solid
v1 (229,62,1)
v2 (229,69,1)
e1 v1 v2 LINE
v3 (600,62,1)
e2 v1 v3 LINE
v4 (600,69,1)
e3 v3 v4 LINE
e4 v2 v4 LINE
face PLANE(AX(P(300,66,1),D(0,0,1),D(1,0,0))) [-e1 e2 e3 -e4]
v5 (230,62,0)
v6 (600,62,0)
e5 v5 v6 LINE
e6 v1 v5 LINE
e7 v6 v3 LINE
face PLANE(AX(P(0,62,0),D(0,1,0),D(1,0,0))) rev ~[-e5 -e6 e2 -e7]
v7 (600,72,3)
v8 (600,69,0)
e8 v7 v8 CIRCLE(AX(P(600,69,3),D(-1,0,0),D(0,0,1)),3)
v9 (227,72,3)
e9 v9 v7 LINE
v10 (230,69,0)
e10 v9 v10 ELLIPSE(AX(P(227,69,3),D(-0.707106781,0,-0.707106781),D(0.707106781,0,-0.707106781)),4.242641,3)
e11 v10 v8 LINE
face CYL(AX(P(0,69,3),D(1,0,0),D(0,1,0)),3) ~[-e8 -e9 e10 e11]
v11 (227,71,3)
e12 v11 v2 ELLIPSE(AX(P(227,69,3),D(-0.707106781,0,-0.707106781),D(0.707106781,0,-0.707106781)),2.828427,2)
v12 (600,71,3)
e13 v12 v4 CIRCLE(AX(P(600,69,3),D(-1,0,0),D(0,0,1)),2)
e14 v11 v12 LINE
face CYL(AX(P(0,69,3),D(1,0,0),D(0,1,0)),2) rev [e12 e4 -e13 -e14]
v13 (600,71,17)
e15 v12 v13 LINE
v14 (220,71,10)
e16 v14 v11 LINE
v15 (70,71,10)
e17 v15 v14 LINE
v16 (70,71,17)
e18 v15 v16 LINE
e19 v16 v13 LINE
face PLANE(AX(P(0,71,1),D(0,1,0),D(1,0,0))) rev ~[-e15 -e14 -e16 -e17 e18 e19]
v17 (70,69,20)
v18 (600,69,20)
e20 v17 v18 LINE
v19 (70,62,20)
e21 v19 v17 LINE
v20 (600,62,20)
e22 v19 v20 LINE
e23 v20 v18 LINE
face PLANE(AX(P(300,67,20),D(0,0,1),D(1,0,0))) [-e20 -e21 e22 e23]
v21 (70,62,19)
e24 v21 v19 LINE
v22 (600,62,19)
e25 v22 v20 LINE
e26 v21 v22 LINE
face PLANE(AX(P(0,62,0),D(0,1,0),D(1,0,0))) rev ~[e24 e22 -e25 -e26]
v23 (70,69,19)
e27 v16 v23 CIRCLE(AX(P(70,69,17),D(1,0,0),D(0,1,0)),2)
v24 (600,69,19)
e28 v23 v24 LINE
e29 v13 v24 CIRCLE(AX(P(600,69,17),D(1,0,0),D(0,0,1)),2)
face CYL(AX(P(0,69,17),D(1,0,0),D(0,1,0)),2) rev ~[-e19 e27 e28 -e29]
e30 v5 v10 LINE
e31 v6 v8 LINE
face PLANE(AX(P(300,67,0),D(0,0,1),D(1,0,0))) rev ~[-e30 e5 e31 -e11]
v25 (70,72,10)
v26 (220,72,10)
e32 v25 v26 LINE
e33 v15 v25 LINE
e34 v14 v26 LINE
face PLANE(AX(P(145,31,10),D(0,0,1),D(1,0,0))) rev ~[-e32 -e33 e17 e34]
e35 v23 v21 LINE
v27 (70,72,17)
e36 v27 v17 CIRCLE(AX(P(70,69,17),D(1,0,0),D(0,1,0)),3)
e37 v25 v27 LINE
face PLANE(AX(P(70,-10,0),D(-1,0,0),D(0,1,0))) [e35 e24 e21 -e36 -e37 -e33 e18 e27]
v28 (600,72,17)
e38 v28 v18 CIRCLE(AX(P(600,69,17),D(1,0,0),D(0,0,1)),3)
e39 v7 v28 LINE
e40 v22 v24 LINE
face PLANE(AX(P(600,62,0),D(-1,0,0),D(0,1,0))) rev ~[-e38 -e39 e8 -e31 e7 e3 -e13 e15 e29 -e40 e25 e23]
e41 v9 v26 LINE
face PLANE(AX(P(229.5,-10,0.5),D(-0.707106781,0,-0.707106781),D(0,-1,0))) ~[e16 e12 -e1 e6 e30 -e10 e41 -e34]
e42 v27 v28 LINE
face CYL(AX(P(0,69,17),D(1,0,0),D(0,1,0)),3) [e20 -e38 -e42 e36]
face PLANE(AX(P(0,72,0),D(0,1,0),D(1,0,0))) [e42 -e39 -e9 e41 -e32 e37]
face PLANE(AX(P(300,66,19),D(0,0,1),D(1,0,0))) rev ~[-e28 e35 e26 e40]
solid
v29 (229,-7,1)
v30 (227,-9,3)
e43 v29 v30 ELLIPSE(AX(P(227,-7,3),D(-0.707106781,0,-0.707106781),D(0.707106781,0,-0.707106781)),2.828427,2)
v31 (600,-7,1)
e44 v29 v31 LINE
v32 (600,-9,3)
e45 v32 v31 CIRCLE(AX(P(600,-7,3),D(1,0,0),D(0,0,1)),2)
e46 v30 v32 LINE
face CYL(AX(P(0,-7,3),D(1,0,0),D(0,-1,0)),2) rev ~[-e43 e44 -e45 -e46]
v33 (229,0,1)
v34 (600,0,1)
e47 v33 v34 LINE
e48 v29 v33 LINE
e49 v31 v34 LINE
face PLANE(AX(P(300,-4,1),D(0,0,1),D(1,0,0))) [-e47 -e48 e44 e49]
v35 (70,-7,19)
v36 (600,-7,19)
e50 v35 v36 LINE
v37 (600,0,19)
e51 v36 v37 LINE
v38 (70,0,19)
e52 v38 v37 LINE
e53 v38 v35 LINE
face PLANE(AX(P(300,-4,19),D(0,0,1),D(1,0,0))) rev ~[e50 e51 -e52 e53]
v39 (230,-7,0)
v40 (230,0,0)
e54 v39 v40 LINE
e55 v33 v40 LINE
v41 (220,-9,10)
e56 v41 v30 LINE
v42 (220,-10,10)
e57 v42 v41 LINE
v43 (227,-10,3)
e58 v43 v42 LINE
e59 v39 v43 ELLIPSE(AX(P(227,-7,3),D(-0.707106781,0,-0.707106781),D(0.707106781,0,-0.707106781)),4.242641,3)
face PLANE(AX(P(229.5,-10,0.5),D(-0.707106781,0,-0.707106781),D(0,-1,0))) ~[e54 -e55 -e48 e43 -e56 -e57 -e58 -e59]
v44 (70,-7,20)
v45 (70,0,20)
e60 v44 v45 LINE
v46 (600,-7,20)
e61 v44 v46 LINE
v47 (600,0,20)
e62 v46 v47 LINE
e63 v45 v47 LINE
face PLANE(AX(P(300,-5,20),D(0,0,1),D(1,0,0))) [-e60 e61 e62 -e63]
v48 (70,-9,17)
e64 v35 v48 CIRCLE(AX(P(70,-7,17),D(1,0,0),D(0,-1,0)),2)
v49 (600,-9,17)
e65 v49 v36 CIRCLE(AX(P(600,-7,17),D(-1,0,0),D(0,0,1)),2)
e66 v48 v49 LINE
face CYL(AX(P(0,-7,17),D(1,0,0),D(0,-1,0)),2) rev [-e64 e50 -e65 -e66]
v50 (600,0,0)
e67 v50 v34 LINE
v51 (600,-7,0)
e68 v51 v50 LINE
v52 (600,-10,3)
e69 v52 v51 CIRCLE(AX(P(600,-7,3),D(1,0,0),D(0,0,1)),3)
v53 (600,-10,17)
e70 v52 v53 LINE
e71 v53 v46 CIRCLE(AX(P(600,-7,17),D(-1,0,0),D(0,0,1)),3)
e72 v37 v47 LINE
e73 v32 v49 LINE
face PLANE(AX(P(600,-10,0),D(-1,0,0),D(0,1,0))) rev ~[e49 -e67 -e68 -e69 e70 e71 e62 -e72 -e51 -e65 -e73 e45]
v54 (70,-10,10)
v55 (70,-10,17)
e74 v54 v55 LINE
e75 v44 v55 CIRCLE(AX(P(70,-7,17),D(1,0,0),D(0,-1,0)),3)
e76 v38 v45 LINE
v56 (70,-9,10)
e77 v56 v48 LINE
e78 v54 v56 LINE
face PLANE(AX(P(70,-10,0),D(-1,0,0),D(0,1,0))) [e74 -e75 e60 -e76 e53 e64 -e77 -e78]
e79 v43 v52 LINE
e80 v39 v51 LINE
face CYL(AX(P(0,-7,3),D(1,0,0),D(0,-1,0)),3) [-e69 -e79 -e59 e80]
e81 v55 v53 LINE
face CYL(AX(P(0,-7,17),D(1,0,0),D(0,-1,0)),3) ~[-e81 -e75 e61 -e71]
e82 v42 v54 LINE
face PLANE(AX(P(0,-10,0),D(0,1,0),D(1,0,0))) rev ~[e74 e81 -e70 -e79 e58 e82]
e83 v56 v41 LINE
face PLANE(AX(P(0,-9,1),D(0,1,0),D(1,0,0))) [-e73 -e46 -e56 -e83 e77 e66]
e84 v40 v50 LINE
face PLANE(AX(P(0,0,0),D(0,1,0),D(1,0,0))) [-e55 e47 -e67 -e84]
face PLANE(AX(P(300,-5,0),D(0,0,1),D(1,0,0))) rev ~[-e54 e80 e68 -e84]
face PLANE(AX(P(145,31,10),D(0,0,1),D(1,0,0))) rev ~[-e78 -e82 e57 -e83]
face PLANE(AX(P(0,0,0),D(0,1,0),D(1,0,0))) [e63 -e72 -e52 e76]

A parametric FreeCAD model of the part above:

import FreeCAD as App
import Part
import Sketcher
from FreeCAD import Vector


def edges_at(feature, points):
    """Names of the edges that pass closest to the given points."""
    edges = feature.Shape.Edges
    near = lambda p: min(range(len(edges)), key=lambda i: edges[i].distToShape(Part.Vertex(*p))[0])
    return sorted({f"Edge{near(p) + 1}" for p in points})

doc = App.newDocument("Part")
params = doc.addObject("Spreadsheet::Sheet", "Params")
for row, (alias, value) in enumerate([
    ("sketch1_width", "150 mm"),
    ("sketch1_height", "82 mm"),
    ("pad1_length", "10 mm"),
    ("sketch2_width", "20 mm"),
    ("sketch2_height", "82 mm"),
    ("pad2_length", "20 mm"),
    ("chamfer_size", "19 mm"),
    ("sketch3_width", "70 mm"),
    ("sketch3_height", "82 mm"),
    ("pad3_length", "20 mm"),
    ("sketch4_width", "600 mm"),
    ("sketch4_height", "10 mm"),
    ("pad4_length", "18 mm"),
    ("fillet_radius", "2 mm"),
    ("sketch5_width", "600 mm"),
    ("sketch5_height", "10 mm"),
    ("pad5_length", "18 mm"),
    ("fillet2_radius", "2 mm"),
    ("sketch6_width", "600 mm"),
    ("sketch6_height", "10 mm"),
    ("pad6_length", "20 mm"),
    ("sketch7_width", "600 mm"),
    ("sketch7_height", "10 mm"),
    ("pad7_length", "20 mm"),
    ("fillet3_radius", "3 mm"),
], start=1):
    params.set(f"A{row}", alias)
    params.set(f"B{row}", "=" + value)
    params.setAlias(f"B{row}", alias)

body = doc.addObject("PartDesign::Body", "Body")

# Sketch on XY plane
sketch1 = body.newObject("Sketcher::SketchObject", "Sketch")
sketch1.AttachmentSupport = (doc.getObject("XY_Plane"), [""])
sketch1.MapMode = "FlatFace"
sketch1.addGeometry([
    Part.LineSegment(Vector(0, 72, 0), Vector(0, -10, 0)),
    Part.LineSegment(Vector(0, -10, 0), Vector(150, -10, 0)),
    Part.LineSegment(Vector(150, -10, 0), Vector(150, 72, 0)),
    Part.LineSegment(Vector(150, 72, 0), Vector(0, 72, 0)),
], False)
sketch1.addConstraint([
    Sketcher.Constraint("Coincident", 0, 2, 1, 1),
    Sketcher.Constraint("Coincident", 1, 2, 2, 1),
    Sketcher.Constraint("Coincident", 2, 2, 3, 1),
    Sketcher.Constraint("Coincident", 3, 2, 0, 1),
    Sketcher.Constraint("Vertical", 0),
    Sketcher.Constraint("Horizontal", 1),
    Sketcher.Constraint("Vertical", 2),
    Sketcher.Constraint("Horizontal", 3),
    Sketcher.Constraint("PointOnObject", 0, 2, -2),
    Sketcher.Constraint("DistanceX", 1, 1, 1, 2, 150.0),
    Sketcher.Constraint("DistanceY", 0, 2, 0, 1, 82.0),
    Sketcher.Constraint("DistanceY", 0, 2, -1, 1, 10.0),
])
sketch1.setExpression("Constraints[9]", "Params.sketch1_width")
sketch1.setExpression("Constraints[10]", "Params.sketch1_height")
pad1 = body.newObject("PartDesign::Pad", "Pad")
pad1.Profile = sketch1
pad1.setExpression("Length", "Params.pad1_length")
body2 = doc.addObject("PartDesign::Body", "Body001")

# Sketch on XY plane
sketch2 = body2.newObject("Sketcher::SketchObject", "Sketch001")
sketch2.AttachmentSupport = (doc.getObject("XY_Plane001"), [""])
sketch2.MapMode = "FlatFace"
sketch2.AttachmentOffset = App.Placement(Vector(0, 0, -10), App.Rotation())
sketch2.addGeometry([
    Part.LineSegment(Vector(137, 72, 0), Vector(137, -10, 0)),
    Part.LineSegment(Vector(137, -10, 0), Vector(157, -10, 0)),
    Part.LineSegment(Vector(157, -10, 0), Vector(157, 72, 0)),
    Part.LineSegment(Vector(157, 72, 0), Vector(137, 72, 0)),
], False)
sketch2.addConstraint([
    Sketcher.Constraint("Coincident", 0, 2, 1, 1),
    Sketcher.Constraint("Coincident", 1, 2, 2, 1),
    Sketcher.Constraint("Coincident", 2, 2, 3, 1),
    Sketcher.Constraint("Coincident", 3, 2, 0, 1),
    Sketcher.Constraint("Vertical", 0),
    Sketcher.Constraint("Horizontal", 1),
    Sketcher.Constraint("Vertical", 2),
    Sketcher.Constraint("Horizontal", 3),
    Sketcher.Constraint("DistanceX", 1, 1, 1, 2, 20.0),
    Sketcher.Constraint("DistanceY", 0, 2, 0, 1, 82.0),
    Sketcher.Constraint("DistanceX", -1, 1, 0, 2, 137.0),
    Sketcher.Constraint("DistanceY", 0, 2, -1, 1, 10.0),
])
sketch2.setExpression("Constraints[8]", "Params.sketch2_width")
sketch2.setExpression("Constraints[9]", "Params.sketch2_height")
pad2 = body2.newObject("PartDesign::Pad", "Pad001")
pad2.Profile = sketch2
pad2.setExpression("Length", "Params.pad2_length")
doc.recompute()

chamfer = body2.newObject("PartDesign::Chamfer", "Chamfer")
chamfer.Base = (pad2, edges_at(pad2, [(157, 31, 10)]))
chamfer.setExpression("Size", "Params.chamfer_size")
body3 = doc.addObject("PartDesign::Body", "Body002")
doc.recompute()

body2.Placement = App.Placement(Vector(12, 0, 0), App.Rotation(Vector(0, 0, 1), 0))
boolean = body3.newObject("PartDesign::Boolean", "Boolean")
boolean.Type = "Fuse"
boolean.addObjects([body2])
doc.recompute()

boolean2 = body3.newObject("PartDesign::Boolean", "Boolean001")
boolean2.Type = "Fuse"
boolean2.addObjects([body])
body4 = doc.addObject("PartDesign::Body", "Body003")
doc.recompute()

body3.Placement = App.Placement(Vector(70, 0, 0), App.Rotation(Vector(0, 0, 1), 0))
boolean3 = body4.newObject("PartDesign::Boolean", "Boolean002")
boolean3.Type = "Fuse"
boolean3.addObjects([body3])
body5 = doc.addObject("PartDesign::Body", "Body004")

# Sketch on XY plane
sketch3 = body5.newObject("Sketcher::SketchObject", "Sketch002")
sketch3.AttachmentSupport = (doc.getObject("XY_Plane004"), [""])
sketch3.MapMode = "FlatFace"
sketch3.addGeometry([
    Part.LineSegment(Vector(0, 72, 0), Vector(0, -10, 0)),
    Part.LineSegment(Vector(0, -10, 0), Vector(70, -10, 0)),
    Part.LineSegment(Vector(70, -10, 0), Vector(70, 72, 0)),
    Part.LineSegment(Vector(70, 72, 0), Vector(0, 72, 0)),
], False)
sketch3.addConstraint([
    Sketcher.Constraint("Coincident", 0, 2, 1, 1),
    Sketcher.Constraint("Coincident", 1, 2, 2, 1),
    Sketcher.Constraint("Coincident", 2, 2, 3, 1),
    Sketcher.Constraint("Coincident", 3, 2, 0, 1),
    Sketcher.Constraint("Vertical", 0),
    Sketcher.Constraint("Horizontal", 1),
    Sketcher.Constraint("Vertical", 2),
    Sketcher.Constraint("Horizontal", 3),
    Sketcher.Constraint("PointOnObject", 0, 2, -2),
    Sketcher.Constraint("DistanceX", 1, 1, 1, 2, 70.0),
    Sketcher.Constraint("DistanceY", 0, 2, 0, 1, 82.0),
    Sketcher.Constraint("DistanceY", 0, 2, -1, 1, 10.0),
])
sketch3.setExpression("Constraints[9]", "Params.sketch3_width")
sketch3.setExpression("Constraints[10]", "Params.sketch3_height")
pad3 = body5.newObject("PartDesign::Pad", "Pad002")
pad3.Profile = sketch3
pad3.setExpression("Length", "Params.pad3_length")
doc.recompute()

boolean4 = body5.newObject("PartDesign::Boolean", "Boolean003")
boolean4.Type = "Fuse"
boolean4.addObjects([body4])
body6 = doc.addObject("PartDesign::Body", "Body005")

# Sketch on XY plane
sketch4 = body6.newObject("Sketcher::SketchObject", "Sketch003")
sketch4.AttachmentSupport = (doc.getObject("XY_Plane005"), [""])
sketch4.MapMode = "FlatFace"
sketch4.AttachmentOffset = App.Placement(Vector(0, 0, 1), App.Rotation())
sketch4.addGeometry([
    Part.LineSegment(Vector(0, 11, 0), Vector(0, 1, 0)),
    Part.LineSegment(Vector(0, 1, 0), Vector(600, 1, 0)),
    Part.LineSegment(Vector(600, 1, 0), Vector(600, 11, 0)),
    Part.LineSegment(Vector(600, 11, 0), Vector(0, 11, 0)),
], False)
sketch4.addConstraint([
    Sketcher.Constraint("Coincident", 0, 2, 1, 1),
    Sketcher.Constraint("Coincident", 1, 2, 2, 1),
    Sketcher.Constraint("Coincident", 2, 2, 3, 1),
    Sketcher.Constraint("Coincident", 3, 2, 0, 1),
    Sketcher.Constraint("Vertical", 0),
    Sketcher.Constraint("Horizontal", 1),
    Sketcher.Constraint("Vertical", 2),
    Sketcher.Constraint("Horizontal", 3),
    Sketcher.Constraint("PointOnObject", 0, 2, -2),
    Sketcher.Constraint("DistanceX", 1, 1, 1, 2, 600.0),
    Sketcher.Constraint("DistanceY", 0, 2, 0, 1, 10.0),
    Sketcher.Constraint("DistanceY", -1, 1, 0, 2, 1.0),
])
sketch4.setExpression("Constraints[9]", "Params.sketch4_width")
sketch4.setExpression("Constraints[10]", "Params.sketch4_height")
pad4 = body6.newObject("PartDesign::Pad", "Pad003")
pad4.Profile = sketch4
pad4.setExpression("Length", "Params.pad4_length")
doc.recompute()

fillet = body6.newObject("PartDesign::Fillet", "Fillet")
fillet.Base = (pad4, edges_at(pad4, [(300, 1, 1), (300, 1, 19)]))
fillet.setExpression("Radius", "Params.fillet_radius")
body7 = doc.addObject("PartDesign::Body", "Body006")
doc.recompute()

body6.Placement = App.Placement(Vector(0, -10, 0), App.Rotation(Vector(0, 0, 1), 0))
boolean5 = body7.newObject("PartDesign::Boolean", "Boolean004")
boolean5.Type = "Fuse"
boolean5.addObjects([body6])
body8 = doc.addObject("PartDesign::Body", "Body007")

# Sketch on XY plane
sketch5 = body8.newObject("Sketcher::SketchObject", "Sketch004")
sketch5.AttachmentSupport = (doc.getObject("XY_Plane007"), [""])
sketch5.MapMode = "FlatFace"
sketch5.AttachmentOffset = App.Placement(Vector(0, 0, 1), App.Rotation())
sketch5.addGeometry([
    Part.LineSegment(Vector(0, 61, 0), Vector(0, 51, 0)),
    Part.LineSegment(Vector(0, 51, 0), Vector(600, 51, 0)),
    Part.LineSegment(Vector(600, 51, 0), Vector(600, 61, 0)),
    Part.LineSegment(Vector(600, 61, 0), Vector(0, 61, 0)),
], False)
sketch5.addConstraint([
    Sketcher.Constraint("Coincident", 0, 2, 1, 1),
    Sketcher.Constraint("Coincident", 1, 2, 2, 1),
    Sketcher.Constraint("Coincident", 2, 2, 3, 1),
    Sketcher.Constraint("Coincident", 3, 2, 0, 1),
    Sketcher.Constraint("Vertical", 0),
    Sketcher.Constraint("Horizontal", 1),
    Sketcher.Constraint("Vertical", 2),
    Sketcher.Constraint("Horizontal", 3),
    Sketcher.Constraint("PointOnObject", 0, 2, -2),
    Sketcher.Constraint("DistanceX", 1, 1, 1, 2, 600.0),
    Sketcher.Constraint("DistanceY", 0, 2, 0, 1, 10.0),
    Sketcher.Constraint("DistanceY", -1, 1, 0, 2, 51.0),
])
sketch5.setExpression("Constraints[9]", "Params.sketch5_width")
sketch5.setExpression("Constraints[10]", "Params.sketch5_height")
pad5 = body8.newObject("PartDesign::Pad", "Pad004")
pad5.Profile = sketch5
pad5.setExpression("Length", "Params.pad5_length")
doc.recompute()

fillet2 = body8.newObject("PartDesign::Fillet", "Fillet001")
fillet2.Base = (pad5, edges_at(pad5, [(300, 61, 1), (300, 61, 19)]))
fillet2.setExpression("Radius", "Params.fillet2_radius")
body9 = doc.addObject("PartDesign::Body", "Body008")
body9.AllowCompound = True
doc.recompute()

body8.Placement = App.Placement(Vector(0, 10, 0), App.Rotation(Vector(0, 0, 1), 0))
boolean6 = body9.newObject("PartDesign::Boolean", "Boolean005")
boolean6.Type = "Fuse"
boolean6.addObjects([body8])
doc.recompute()

boolean7 = body9.newObject("PartDesign::Boolean", "Boolean006")
boolean7.Type = "Fuse"
boolean7.addObjects([body7])
body10 = doc.addObject("PartDesign::Body", "Body009")

# Sketch on XY plane
sketch6 = body10.newObject("Sketcher::SketchObject", "Sketch005")
sketch6.AttachmentSupport = (doc.getObject("XY_Plane009"), [""])
sketch6.MapMode = "FlatFace"
sketch6.addGeometry([
    Part.LineSegment(Vector(0, 0, 0), Vector(0, -10, 0)),
    Part.LineSegment(Vector(0, -10, 0), Vector(600, -10, 0)),
    Part.LineSegment(Vector(600, -10, 0), Vector(600, 0, 0)),
    Part.LineSegment(Vector(600, 0, 0), Vector(0, 0, 0)),
], False)
sketch6.addConstraint([
    Sketcher.Constraint("Coincident", 0, 2, 1, 1),
    Sketcher.Constraint("Coincident", 1, 2, 2, 1),
    Sketcher.Constraint("Coincident", 2, 2, 3, 1),
    Sketcher.Constraint("Coincident", 3, 2, 0, 1),
    Sketcher.Constraint("Vertical", 0),
    Sketcher.Constraint("Horizontal", 1),
    Sketcher.Constraint("Vertical", 2),
    Sketcher.Constraint("Horizontal", 3),
    Sketcher.Constraint("Coincident", 3, 2, -1, 1),
    Sketcher.Constraint("DistanceX", 1, 1, 1, 2, 600.0),
    Sketcher.Constraint("DistanceY", 0, 2, 0, 1, 10.0),
])
sketch6.setExpression("Constraints[9]", "Params.sketch6_width")
sketch6.setExpression("Constraints[10]", "Params.sketch6_height")
pad6 = body10.newObject("PartDesign::Pad", "Pad005")
pad6.Profile = sketch6
pad6.setExpression("Length", "Params.pad6_length")
body11 = doc.addObject("PartDesign::Body", "Body010")
body11.AllowCompound = True

# Sketch on XY plane
sketch7 = body11.newObject("Sketcher::SketchObject", "Sketch006")
sketch7.AttachmentSupport = (doc.getObject("XY_Plane010"), [""])
sketch7.MapMode = "FlatFace"
sketch7.addGeometry([
    Part.LineSegment(Vector(0, 72, 0), Vector(0, 62, 0)),
    Part.LineSegment(Vector(0, 62, 0), Vector(600, 62, 0)),
    Part.LineSegment(Vector(600, 62, 0), Vector(600, 72, 0)),
    Part.LineSegment(Vector(600, 72, 0), Vector(0, 72, 0)),
], False)
sketch7.addConstraint([
    Sketcher.Constraint("Coincident", 0, 2, 1, 1),
    Sketcher.Constraint("Coincident", 1, 2, 2, 1),
    Sketcher.Constraint("Coincident", 2, 2, 3, 1),
    Sketcher.Constraint("Coincident", 3, 2, 0, 1),
    Sketcher.Constraint("Vertical", 0),
    Sketcher.Constraint("Horizontal", 1),
    Sketcher.Constraint("Vertical", 2),
    Sketcher.Constraint("Horizontal", 3),
    Sketcher.Constraint("PointOnObject", 0, 2, -2),
    Sketcher.Constraint("DistanceX", 1, 1, 1, 2, 600.0),
    Sketcher.Constraint("DistanceY", 0, 2, 0, 1, 10.0),
    Sketcher.Constraint("DistanceY", -1, 1, 0, 2, 62.0),
])
sketch7.setExpression("Constraints[9]", "Params.sketch7_width")
sketch7.setExpression("Constraints[10]", "Params.sketch7_height")
pad7 = body11.newObject("PartDesign::Pad", "Pad006")
pad7.Profile = sketch7
pad7.setExpression("Length", "Params.pad7_length")
doc.recompute()

boolean8 = body11.newObject("PartDesign::Boolean", "Boolean007")
boolean8.Type = "Fuse"
boolean8.addObjects([body10])
doc.recompute()

fillet3 = body11.newObject("PartDesign::Fillet", "Fillet002")
fillet3.Base = (boolean8, edges_at(boolean8, [
    (300, 72, 0),
    (300, 72, 20),
    (300, -10, 0),
    (300, -10, 20),
]))
fillet3.setExpression("Radius", "Params.fillet3_radius")
doc.recompute()

boolean9 = body11.newObject("PartDesign::Boolean", "Boolean008")
boolean9.Type = "Cut"
boolean9.addObjects([body9])
doc.recompute()

boolean10 = body11.newObject("PartDesign::Boolean", "Boolean009")
boolean10.Type = "Cut"
boolean10.addObjects([body5])

doc.recompute()
